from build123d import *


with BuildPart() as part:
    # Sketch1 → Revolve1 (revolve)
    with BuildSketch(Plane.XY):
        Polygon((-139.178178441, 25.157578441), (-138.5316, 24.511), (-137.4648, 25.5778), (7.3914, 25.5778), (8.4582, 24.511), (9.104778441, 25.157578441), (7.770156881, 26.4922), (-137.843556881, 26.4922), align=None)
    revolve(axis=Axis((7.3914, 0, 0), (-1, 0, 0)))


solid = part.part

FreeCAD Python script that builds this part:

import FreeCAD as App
import Part
import Sketcher
from FreeCAD import Vector
Q = App.Units.Quantity

doc = App.newDocument("Part")
body = doc.addObject("PartDesign::Body", "Body")

sketch1 = body.newObject("Sketcher::SketchObject", "Sketch")
sketch1.AttachmentSupport = (doc.getObject("XY_Plane"), [""])
sketch1.MapMode = "FlatFace"
sketch1.addGeometry([
    Part.LineSegment(Vector(-139.2, 25.2, 0), Vector(-138.5, 24.5, 0)),
    Part.LineSegment(Vector(-138.5, 24.5, 0), Vector(-137.5, 25.6, 0)),
    Part.LineSegment(Vector(-137.5, 25.6, 0), Vector(7.4, 25.6, 0)),
    Part.LineSegment(Vector(7.4, 25.6, 0), Vector(8.5, 24.5, 0)),
    Part.LineSegment(Vector(8.5, 24.5, 0), Vector(9.1, 25.2, 0)),
    Part.LineSegment(Vector(9.1, 25.2, 0), Vector(7.8, 26.5, 0)),
    Part.LineSegment(Vector(7.8, 26.5, 0), Vector(-137.8, 26.5, 0)),
    Part.LineSegment(Vector(-137.8, 26.5, 0), Vector(-139.2, 25.2, 0)),
], False)
sketch1.addConstraint([
    Sketcher.Constraint("Coincident", 0, 2, 1, 1),
    Sketcher.Constraint("Coincident", 1, 2, 2, 1),
    Sketcher.Constraint("Coincident", 2, 2, 3, 1),
    Sketcher.Constraint("Coincident", 3, 2, 4, 1),
    Sketcher.Constraint("Coincident", 4, 2, 5, 1),
    Sketcher.Constraint("Coincident", 5, 2, 6, 1),
    Sketcher.Constraint("Coincident", 6, 2, 7, 1),
    Sketcher.Constraint("Coincident", 7, 2, 0, 1),
    Sketcher.Constraint("Horizontal", 2),
    Sketcher.Constraint("Horizontal", 6),
    Sketcher.Constraint("Perpendicular", 0, 1),
    Sketcher.Constraint("Perpendicular", 1, 3),
    Sketcher.Constraint("Perpendicular", 3, 4),
    Sketcher.Constraint("Perpendicular", 4, 5),
    Sketcher.Constraint("Perpendicular", 5, 7),
    Sketcher.Constraint("Horizontal", 0, 2, 3, 2),
    Sketcher.Constraint("Horizontal", 4, 2, 7, 2),
    Sketcher.Constraint("Equal", 1, 3),
    Sketcher.Constraint("DistanceX", 2, 1, 2, 2, Q("5.703 in")),
    Sketcher.Constraint("Distance", 0, Q("0.036 in")),
    Sketcher.Constraint("DistanceX", 0, 2, -1, 1, Q("5.454 in")),
    Sketcher.Constraint("DistanceY", -1, 1, 0, 2, Q("0.965 in")),
    Sketcher.Constraint("DistanceX", 1, 2, -1, 1, Q("5.412 in")),
    Sketcher.Constraint("DistanceY", -1, 1, 5, 2, Q("1.043 in")),
])
revolution = body.newObject("PartDesign::Revolution", "Revolution")
revolution.Profile = sketch1
revolution.ReferenceAxis = (sketch1, ["H_Axis"])
revolution.Angle = 360

doc.recompute()
